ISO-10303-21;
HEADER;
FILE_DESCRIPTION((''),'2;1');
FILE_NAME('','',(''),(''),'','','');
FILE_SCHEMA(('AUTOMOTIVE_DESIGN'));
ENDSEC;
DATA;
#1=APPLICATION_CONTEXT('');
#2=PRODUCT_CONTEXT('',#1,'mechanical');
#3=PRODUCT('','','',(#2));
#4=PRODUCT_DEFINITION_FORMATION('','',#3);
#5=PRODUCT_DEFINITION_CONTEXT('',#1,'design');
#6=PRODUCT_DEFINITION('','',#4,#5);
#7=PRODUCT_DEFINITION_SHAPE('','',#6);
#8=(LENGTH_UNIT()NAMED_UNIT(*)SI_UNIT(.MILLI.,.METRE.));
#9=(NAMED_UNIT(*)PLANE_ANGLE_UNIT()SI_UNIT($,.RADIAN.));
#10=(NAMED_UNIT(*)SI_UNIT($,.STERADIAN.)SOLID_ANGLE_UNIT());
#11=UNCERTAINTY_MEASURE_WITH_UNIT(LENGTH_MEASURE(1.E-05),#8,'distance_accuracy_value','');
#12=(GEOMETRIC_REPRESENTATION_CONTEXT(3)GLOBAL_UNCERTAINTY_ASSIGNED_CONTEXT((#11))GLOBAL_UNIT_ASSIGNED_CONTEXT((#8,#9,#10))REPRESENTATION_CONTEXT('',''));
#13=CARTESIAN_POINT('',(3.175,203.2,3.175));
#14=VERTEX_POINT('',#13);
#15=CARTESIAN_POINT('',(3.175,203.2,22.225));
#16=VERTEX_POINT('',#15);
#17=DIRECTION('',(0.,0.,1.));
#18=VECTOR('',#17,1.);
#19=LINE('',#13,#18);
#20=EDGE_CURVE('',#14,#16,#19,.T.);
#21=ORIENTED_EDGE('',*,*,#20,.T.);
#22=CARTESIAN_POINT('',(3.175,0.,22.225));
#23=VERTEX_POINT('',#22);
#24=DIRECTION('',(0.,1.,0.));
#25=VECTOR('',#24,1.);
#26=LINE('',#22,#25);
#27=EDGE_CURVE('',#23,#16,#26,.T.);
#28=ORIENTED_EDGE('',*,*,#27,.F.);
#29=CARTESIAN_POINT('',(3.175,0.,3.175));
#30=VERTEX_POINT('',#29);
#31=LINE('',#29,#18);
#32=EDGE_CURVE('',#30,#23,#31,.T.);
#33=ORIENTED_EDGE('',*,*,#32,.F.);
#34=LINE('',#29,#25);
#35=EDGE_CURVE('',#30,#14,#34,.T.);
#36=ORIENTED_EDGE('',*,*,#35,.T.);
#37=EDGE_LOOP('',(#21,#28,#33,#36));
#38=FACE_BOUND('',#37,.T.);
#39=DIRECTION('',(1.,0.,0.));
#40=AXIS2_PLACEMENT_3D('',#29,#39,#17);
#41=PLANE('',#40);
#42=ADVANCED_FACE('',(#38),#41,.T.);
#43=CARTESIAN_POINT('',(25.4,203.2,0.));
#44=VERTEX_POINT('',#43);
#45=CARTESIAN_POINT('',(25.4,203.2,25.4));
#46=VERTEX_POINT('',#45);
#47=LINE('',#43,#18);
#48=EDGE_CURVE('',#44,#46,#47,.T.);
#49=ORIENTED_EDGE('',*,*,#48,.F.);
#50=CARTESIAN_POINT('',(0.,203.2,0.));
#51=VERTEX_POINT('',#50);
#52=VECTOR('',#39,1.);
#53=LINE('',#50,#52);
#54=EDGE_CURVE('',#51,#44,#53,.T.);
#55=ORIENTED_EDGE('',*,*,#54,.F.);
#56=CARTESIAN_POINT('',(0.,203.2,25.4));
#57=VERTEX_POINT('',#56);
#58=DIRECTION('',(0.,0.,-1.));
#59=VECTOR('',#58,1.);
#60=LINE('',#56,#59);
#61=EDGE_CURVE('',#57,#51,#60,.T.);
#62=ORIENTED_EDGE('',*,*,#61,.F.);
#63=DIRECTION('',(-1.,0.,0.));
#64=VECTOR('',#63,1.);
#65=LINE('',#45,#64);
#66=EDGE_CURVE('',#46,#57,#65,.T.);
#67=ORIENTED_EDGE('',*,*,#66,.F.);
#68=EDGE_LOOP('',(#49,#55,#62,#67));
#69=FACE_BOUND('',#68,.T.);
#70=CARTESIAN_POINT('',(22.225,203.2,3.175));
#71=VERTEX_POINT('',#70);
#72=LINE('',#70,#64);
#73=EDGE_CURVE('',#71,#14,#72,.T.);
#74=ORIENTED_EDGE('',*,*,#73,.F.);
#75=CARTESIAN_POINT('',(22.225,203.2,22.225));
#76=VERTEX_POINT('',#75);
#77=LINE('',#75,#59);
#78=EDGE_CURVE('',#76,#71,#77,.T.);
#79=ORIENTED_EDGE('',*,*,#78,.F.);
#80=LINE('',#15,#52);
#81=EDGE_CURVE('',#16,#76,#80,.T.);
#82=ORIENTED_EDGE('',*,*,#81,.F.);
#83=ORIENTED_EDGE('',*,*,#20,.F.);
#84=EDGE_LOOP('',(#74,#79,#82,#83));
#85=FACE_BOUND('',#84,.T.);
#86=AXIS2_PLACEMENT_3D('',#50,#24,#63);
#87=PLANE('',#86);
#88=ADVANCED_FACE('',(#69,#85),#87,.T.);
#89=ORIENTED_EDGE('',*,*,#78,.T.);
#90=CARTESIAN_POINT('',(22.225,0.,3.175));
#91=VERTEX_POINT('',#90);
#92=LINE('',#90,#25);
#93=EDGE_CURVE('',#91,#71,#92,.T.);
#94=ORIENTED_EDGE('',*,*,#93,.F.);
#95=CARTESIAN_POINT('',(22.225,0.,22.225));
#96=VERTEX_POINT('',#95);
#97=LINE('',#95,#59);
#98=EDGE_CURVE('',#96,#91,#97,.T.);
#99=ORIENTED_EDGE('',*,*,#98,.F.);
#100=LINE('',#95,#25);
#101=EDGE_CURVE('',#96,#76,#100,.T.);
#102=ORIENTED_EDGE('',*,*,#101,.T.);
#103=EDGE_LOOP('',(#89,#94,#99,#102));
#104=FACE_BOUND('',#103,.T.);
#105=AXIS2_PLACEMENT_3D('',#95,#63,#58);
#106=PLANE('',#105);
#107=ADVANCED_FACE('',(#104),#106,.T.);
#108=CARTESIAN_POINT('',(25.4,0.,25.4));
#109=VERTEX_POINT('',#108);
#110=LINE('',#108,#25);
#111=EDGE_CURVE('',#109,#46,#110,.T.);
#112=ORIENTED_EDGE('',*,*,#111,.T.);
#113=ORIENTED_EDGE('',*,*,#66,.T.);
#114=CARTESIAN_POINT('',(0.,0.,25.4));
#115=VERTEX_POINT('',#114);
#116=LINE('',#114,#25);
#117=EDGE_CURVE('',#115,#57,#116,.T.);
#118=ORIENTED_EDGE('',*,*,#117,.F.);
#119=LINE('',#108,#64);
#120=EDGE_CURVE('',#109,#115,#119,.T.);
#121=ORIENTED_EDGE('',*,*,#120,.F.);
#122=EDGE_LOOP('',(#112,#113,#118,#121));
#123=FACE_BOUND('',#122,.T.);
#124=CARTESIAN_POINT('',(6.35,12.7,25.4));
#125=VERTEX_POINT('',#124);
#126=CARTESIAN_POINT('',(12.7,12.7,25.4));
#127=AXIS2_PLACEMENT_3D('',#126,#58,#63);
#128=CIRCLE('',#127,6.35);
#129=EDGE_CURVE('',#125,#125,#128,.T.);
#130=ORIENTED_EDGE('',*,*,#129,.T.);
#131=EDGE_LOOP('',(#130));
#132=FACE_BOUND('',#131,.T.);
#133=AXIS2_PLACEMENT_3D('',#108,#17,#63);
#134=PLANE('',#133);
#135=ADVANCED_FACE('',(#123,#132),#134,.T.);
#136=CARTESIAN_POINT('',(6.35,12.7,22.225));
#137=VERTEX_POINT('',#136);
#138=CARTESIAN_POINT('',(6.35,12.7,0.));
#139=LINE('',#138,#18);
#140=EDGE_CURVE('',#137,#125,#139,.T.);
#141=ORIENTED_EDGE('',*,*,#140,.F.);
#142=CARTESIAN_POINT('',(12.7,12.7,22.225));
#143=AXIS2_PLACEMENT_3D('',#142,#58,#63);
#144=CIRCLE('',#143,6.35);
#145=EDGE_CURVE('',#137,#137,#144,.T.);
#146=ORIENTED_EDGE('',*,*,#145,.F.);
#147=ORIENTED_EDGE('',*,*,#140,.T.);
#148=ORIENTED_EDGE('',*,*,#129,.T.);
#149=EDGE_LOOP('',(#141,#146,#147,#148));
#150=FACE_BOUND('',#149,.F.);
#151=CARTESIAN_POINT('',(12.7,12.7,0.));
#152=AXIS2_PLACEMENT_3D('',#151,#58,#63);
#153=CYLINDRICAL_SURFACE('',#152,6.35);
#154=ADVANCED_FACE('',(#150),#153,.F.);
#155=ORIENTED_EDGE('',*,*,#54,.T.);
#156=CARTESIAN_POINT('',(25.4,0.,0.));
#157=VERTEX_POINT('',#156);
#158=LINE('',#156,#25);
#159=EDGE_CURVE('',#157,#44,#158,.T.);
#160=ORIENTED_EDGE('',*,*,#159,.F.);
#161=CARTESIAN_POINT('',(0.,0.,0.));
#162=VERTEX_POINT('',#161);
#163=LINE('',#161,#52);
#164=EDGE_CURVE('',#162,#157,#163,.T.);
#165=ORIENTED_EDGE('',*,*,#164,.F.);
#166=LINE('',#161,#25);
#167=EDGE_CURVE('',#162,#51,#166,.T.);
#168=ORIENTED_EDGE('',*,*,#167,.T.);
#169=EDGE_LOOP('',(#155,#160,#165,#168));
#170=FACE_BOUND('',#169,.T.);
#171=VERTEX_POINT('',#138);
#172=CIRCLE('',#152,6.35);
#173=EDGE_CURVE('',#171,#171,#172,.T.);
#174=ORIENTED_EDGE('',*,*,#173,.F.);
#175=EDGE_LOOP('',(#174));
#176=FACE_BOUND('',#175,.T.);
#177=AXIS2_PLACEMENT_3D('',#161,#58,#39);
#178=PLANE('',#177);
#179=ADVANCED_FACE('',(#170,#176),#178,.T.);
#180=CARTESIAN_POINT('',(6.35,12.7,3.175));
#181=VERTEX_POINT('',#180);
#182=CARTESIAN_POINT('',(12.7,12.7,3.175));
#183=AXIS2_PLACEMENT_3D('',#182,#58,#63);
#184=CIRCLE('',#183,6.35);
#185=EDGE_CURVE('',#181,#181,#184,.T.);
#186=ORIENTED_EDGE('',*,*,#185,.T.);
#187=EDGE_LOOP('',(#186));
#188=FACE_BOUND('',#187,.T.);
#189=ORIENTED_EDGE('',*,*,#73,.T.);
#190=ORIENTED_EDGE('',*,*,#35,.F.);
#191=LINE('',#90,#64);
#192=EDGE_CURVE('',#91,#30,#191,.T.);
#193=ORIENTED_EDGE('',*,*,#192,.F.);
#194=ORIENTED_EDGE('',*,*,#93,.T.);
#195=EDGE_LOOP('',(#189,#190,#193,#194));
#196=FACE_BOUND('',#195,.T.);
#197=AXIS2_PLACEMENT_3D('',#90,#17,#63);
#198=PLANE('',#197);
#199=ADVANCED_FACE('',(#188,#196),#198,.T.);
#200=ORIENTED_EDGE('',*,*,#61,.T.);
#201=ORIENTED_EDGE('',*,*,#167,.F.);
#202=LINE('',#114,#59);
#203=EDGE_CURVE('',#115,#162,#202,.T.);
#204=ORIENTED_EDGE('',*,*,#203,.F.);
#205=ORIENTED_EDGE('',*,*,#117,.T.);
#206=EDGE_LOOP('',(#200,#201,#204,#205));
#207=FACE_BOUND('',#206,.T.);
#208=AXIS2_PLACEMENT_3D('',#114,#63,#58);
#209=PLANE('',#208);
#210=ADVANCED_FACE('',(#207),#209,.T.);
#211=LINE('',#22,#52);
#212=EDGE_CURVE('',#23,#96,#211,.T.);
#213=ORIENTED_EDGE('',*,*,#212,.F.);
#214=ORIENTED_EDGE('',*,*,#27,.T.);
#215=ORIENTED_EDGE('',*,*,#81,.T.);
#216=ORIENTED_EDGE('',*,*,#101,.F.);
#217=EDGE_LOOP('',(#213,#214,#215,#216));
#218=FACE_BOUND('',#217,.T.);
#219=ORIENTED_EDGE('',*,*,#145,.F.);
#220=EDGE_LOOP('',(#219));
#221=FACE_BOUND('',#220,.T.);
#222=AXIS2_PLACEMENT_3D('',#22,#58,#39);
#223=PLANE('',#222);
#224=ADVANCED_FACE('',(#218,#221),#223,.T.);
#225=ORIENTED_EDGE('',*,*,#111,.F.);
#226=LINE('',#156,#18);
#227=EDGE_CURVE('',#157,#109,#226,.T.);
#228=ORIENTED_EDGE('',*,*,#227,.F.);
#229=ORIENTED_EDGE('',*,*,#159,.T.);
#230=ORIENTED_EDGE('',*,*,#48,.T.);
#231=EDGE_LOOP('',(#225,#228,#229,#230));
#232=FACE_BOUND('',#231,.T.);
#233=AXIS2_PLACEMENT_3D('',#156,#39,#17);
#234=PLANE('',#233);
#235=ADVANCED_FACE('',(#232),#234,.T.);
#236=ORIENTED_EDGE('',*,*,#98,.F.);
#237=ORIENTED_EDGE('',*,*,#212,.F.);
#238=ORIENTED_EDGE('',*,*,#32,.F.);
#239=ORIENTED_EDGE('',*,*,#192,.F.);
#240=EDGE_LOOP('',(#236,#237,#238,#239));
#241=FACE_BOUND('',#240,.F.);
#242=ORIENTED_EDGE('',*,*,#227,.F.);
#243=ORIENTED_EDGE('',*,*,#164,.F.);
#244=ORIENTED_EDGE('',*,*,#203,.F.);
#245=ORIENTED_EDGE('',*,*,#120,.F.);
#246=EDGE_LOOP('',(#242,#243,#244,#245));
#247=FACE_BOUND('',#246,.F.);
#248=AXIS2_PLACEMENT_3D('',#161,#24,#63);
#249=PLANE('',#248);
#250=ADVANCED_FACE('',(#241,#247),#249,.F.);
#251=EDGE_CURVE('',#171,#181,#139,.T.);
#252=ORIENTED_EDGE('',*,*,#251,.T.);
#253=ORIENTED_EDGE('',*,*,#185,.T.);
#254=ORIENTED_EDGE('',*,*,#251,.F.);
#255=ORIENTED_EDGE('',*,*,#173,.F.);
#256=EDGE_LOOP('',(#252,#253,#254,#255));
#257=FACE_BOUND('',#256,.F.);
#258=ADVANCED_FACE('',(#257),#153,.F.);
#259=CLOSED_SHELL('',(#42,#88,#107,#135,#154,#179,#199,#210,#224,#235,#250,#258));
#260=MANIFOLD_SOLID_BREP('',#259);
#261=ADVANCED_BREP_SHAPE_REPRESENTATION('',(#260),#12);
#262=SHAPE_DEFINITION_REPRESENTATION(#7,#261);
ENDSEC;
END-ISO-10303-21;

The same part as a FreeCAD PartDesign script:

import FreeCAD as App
import Part
import Sketcher
Q = App.Units.Quantity


def add_polygon(sketch, points):
    """Adds a closed chain of lines whose ends are joined by coincident constraints."""
    first, n = sketch.GeometryCount, len(points)
    for a, b in zip(points, points[1:] + points[:1]):
        sketch.addGeometry(Part.LineSegment(App.Vector(*a, 0), App.Vector(*b, 0)), False)
    for i in range(n):
        sketch.addConstraint(Sketcher.Constraint("Coincident", first + i, 2, first + (i + 1) % n, 1))

doc = App.newDocument("Part")
body = doc.addObject("PartDesign::Body", "Body")

sketch1 = body.newObject("Sketcher::SketchObject", "Sketch")
sketch1.AttachmentSupport = (doc.getObject("XZ_Plane"), [""])
sketch1.MapMode = "FlatFace"
add_polygon(sketch1, [(25, 0), (0, 0), (0, 25), (25, 25)])
add_polygon(sketch1, [(22, 22), (3, 22), (3, 3), (22, 3)])
sketch1.addConstraint([
    Sketcher.Constraint("Horizontal", 0),
    Sketcher.Constraint("Vertical", 1),
    Sketcher.Constraint("Horizontal", 2),
    Sketcher.Constraint("Vertical", 3),
    Sketcher.Constraint("Horizontal", 4),
    Sketcher.Constraint("Vertical", 5),
    Sketcher.Constraint("Horizontal", 6),
    Sketcher.Constraint("Vertical", 7),
    Sketcher.Constraint("Coincident", 0, 2, -1, 1),
    Sketcher.Constraint("Equal", 2, 1),
    Sketcher.Constraint("Equal", 6, 5),
    Sketcher.Constraint("DistanceX", 0, 2, 0, 1, Q("1 in")),
    Sketcher.Constraint("DistanceX", -1, 1, 4, 2, Q("0.125 in")),
    Sketcher.Constraint("DistanceY", -1, 1, 5, 2, Q("0.125 in")),
    Sketcher.Constraint("DistanceY", 4, 2, 1, 2, Q("0.125 in")),
])
pad1 = body.newObject("PartDesign::Pad", "Pad")
pad1.Profile = sketch1
pad1.Length = Q("8 in")
pad1.Reversed = True

sketch2 = body.newObject("Sketcher::SketchObject", "Sketch001")
sketch2.AttachmentSupport = (doc.getObject("XY_Plane"), [""])
sketch2.MapMode = "FlatFace"
sketch2.addGeometry(Part.Circle(App.Vector(13, 13, 0), App.Vector(0, 0, 1), 6), False)
sketch2.addConstraint([
    Sketcher.Constraint("Diameter", 0, Q("0.5 in")),
    Sketcher.Constraint("DistanceX", -1, 1, 0, 3, Q("0.5 in")),
    Sketcher.Constraint("DistanceY", -1, 1, 0, 3, Q("0.5 in")),
])
pocket1 = body.newObject("PartDesign::Pocket", "Pocket")
pocket1.Profile = sketch2
pocket1.Length = Q("1 in")
pocket1.Reversed = True

doc.recompute()
